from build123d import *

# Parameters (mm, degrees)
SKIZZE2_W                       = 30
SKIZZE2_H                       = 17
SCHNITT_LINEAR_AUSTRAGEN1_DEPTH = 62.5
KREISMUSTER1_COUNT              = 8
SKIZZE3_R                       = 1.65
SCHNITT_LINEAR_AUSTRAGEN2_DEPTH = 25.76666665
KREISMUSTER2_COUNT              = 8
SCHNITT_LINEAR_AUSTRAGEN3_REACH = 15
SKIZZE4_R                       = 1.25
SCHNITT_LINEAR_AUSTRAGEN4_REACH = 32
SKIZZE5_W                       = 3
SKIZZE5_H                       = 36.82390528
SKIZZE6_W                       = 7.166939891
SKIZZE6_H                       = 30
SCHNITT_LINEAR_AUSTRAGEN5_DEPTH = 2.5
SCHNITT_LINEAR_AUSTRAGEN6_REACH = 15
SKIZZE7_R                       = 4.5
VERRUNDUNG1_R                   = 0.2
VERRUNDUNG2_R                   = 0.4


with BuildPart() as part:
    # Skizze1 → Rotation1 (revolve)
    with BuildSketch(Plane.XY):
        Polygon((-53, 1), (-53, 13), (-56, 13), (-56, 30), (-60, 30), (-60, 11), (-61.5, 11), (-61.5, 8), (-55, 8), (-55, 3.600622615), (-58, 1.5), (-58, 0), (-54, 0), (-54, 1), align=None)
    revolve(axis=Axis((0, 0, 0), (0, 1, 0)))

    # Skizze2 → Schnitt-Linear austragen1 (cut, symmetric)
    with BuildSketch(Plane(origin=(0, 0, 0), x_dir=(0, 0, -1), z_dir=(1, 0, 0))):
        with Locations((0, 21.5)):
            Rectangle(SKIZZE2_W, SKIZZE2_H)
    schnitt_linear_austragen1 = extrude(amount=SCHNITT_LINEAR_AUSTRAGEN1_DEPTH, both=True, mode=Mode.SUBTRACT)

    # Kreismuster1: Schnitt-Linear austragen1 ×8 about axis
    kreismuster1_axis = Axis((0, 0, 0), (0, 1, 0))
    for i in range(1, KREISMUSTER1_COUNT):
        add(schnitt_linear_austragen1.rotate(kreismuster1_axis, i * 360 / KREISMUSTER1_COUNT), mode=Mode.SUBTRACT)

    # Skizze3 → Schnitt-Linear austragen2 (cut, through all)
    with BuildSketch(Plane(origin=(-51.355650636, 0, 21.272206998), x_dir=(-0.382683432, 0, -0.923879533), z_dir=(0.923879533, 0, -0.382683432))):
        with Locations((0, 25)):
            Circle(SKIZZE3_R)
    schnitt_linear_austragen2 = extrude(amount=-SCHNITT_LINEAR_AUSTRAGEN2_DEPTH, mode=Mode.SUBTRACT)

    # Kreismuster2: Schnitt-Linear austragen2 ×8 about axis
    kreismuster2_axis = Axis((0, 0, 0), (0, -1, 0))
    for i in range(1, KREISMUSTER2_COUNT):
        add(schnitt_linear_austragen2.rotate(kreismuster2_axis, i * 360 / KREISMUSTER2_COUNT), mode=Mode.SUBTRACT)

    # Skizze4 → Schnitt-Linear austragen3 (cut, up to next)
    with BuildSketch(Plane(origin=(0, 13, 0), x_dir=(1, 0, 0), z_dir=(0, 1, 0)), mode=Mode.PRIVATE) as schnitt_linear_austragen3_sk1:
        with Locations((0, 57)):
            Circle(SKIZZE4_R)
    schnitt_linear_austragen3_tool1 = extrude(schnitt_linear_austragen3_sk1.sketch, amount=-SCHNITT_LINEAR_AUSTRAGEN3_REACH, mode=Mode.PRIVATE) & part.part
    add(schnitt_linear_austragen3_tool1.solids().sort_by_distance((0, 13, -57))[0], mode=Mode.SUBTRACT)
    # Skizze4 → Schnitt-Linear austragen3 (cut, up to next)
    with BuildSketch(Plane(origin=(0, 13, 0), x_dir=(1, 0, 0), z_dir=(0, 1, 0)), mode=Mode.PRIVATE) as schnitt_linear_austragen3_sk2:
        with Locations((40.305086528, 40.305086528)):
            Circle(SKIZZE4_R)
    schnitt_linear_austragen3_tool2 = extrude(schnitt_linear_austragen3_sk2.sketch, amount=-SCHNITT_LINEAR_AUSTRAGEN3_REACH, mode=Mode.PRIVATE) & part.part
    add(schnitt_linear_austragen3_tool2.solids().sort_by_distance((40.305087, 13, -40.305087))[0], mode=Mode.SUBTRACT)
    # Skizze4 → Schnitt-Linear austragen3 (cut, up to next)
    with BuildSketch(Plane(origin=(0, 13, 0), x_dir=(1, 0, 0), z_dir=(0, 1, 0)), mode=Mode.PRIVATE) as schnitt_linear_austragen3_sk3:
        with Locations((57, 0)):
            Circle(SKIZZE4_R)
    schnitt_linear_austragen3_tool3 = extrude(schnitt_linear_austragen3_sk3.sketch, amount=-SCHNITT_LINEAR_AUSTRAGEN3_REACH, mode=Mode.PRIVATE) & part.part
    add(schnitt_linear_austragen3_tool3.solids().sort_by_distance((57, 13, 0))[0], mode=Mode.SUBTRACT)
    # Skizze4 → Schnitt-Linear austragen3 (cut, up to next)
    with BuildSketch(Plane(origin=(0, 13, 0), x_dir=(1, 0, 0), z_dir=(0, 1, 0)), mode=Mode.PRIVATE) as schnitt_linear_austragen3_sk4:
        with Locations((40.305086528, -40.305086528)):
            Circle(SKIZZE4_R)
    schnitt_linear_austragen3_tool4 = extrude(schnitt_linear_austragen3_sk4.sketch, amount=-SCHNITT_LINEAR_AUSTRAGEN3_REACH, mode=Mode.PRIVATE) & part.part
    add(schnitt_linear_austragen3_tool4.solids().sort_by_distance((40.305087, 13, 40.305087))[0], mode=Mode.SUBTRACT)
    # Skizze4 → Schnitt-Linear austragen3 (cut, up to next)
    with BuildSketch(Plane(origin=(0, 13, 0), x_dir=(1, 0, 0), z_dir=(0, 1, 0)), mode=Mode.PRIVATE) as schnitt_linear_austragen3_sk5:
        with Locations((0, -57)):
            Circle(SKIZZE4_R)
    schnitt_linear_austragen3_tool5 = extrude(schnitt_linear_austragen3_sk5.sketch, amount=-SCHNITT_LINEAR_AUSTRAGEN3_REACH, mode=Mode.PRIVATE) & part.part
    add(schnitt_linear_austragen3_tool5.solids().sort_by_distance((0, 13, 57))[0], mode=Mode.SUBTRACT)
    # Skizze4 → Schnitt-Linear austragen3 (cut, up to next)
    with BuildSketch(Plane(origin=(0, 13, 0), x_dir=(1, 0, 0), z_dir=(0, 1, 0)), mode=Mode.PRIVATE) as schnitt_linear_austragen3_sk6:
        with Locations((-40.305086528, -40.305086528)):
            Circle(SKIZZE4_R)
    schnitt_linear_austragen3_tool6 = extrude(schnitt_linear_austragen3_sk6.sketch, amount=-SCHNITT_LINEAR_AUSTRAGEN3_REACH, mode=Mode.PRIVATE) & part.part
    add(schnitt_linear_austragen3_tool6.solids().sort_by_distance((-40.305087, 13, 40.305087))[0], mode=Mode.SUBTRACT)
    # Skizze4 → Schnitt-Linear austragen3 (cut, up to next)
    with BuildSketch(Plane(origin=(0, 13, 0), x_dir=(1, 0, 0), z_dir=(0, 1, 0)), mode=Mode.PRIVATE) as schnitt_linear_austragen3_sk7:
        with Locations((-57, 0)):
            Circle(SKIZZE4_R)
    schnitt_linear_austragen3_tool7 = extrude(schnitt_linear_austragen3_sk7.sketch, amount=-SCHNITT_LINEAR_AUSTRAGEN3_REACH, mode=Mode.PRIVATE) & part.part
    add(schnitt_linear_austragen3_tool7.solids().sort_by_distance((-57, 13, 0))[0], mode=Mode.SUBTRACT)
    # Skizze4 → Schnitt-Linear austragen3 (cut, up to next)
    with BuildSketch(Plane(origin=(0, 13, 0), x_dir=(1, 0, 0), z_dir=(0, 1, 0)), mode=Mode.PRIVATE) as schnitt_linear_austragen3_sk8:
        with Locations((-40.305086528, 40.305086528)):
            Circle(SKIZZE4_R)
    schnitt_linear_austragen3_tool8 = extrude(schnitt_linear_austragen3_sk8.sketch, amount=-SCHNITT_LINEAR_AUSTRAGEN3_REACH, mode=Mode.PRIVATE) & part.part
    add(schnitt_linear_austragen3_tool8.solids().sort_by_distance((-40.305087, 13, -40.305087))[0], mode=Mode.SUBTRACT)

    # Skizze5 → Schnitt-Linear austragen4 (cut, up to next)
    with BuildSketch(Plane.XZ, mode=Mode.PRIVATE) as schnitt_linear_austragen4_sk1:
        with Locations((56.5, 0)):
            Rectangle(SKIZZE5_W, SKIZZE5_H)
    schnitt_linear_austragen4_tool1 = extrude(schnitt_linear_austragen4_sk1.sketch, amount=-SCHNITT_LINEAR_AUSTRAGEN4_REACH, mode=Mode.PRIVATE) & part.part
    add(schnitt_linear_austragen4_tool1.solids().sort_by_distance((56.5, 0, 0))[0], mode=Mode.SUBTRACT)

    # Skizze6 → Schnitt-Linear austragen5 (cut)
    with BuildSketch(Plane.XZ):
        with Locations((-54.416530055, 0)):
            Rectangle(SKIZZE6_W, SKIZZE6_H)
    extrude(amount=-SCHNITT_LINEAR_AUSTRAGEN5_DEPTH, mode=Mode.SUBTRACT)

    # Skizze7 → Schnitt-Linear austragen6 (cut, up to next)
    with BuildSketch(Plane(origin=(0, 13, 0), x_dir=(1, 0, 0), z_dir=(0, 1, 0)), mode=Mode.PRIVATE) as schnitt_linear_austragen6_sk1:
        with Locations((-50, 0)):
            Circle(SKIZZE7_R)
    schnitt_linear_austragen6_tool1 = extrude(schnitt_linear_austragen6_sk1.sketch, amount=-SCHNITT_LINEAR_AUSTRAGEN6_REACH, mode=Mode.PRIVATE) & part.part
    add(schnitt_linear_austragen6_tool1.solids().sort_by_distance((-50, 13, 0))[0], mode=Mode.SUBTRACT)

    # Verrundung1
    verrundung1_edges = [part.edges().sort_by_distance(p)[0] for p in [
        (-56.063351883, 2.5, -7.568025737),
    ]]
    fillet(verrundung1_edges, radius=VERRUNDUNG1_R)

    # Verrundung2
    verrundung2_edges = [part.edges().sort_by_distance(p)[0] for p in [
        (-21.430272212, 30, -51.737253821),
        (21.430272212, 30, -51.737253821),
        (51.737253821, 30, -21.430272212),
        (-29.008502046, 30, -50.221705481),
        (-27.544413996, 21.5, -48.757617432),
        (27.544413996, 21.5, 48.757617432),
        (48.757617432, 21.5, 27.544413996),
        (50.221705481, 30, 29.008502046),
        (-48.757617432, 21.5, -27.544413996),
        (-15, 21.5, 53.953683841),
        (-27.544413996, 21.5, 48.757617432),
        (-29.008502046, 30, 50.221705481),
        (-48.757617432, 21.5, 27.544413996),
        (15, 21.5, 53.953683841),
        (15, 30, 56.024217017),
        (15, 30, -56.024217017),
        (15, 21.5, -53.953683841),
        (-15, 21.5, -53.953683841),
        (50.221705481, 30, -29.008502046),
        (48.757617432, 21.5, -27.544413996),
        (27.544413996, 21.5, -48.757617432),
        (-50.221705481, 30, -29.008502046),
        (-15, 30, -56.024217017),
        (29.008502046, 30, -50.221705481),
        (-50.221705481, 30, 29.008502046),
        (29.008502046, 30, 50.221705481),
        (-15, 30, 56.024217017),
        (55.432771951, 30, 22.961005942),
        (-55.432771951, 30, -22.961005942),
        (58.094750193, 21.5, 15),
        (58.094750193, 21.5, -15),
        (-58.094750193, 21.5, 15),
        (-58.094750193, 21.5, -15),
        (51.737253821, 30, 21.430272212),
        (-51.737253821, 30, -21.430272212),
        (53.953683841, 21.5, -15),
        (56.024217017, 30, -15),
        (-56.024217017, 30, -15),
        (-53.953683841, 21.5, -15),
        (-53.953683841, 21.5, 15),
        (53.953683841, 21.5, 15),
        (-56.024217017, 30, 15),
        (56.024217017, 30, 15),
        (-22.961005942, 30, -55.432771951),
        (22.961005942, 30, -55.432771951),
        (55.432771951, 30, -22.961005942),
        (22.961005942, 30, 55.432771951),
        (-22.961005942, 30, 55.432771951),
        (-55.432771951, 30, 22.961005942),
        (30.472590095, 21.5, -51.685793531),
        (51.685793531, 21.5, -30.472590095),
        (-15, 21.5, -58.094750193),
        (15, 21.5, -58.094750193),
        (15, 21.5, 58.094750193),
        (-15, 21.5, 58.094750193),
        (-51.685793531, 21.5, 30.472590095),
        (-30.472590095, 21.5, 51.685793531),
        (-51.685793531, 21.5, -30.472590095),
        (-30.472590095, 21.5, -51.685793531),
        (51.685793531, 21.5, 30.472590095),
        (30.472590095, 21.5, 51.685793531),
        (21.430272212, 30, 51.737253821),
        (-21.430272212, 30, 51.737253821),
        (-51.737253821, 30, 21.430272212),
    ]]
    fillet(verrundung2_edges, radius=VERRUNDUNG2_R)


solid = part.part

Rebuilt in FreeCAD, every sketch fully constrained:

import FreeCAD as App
import Part
import Sketcher
from FreeCAD import Vector
Q = App.Units.Quantity


def edges_at(feature, points):
    """Names of the edges that pass closest to the given points."""
    edges = feature.Shape.Edges
    near = lambda p: min(range(len(edges)), key=lambda i: edges[i].distToShape(Part.Vertex(*p))[0])
    return sorted({f"Edge{near(p) + 1}" for p in points})


def add_polygon(sketch, points):
    """Adds a closed chain of lines whose ends are joined by coincident constraints."""
    first, n = sketch.GeometryCount, len(points)
    for a, b in zip(points, points[1:] + points[:1]):
        sketch.addGeometry(Part.LineSegment(App.Vector(*a, 0), App.Vector(*b, 0)), False)
    for i in range(n):
        sketch.addConstraint(Sketcher.Constraint("Coincident", first + i, 2, first + (i + 1) % n, 1))

doc = App.newDocument("Part")
body = doc.addObject("PartDesign::Body", "Body")

# Sketch on XY plane
sketch1 = body.newObject("Sketcher::SketchObject", "Sketch")
sketch1.AttachmentSupport = (doc.getObject("XY_Plane"), [""])
sketch1.MapMode = "FlatFace"
add_polygon(sketch1, [(-53, 1), (-53, 13), (-56, 13), (-56, 30), (-60, 30), (-60, 11), (-61.5, 11), (-61.5, 8), (-55, 8), (-55, 3.6), (-58, 1.5), (-58, 0), (-54, 0), (-54, 1)])  # lines 0-13
sketch1.addConstraint([
    Sketcher.Constraint("Vertical", 0),
    Sketcher.Constraint("Horizontal", 1),
    Sketcher.Constraint("Vertical", 2),
    Sketcher.Constraint("Horizontal", 3),
    Sketcher.Constraint("Vertical", 4),
    Sketcher.Constraint("Horizontal", 5),
    Sketcher.Constraint("Vertical", 6),
    Sketcher.Constraint("Horizontal", 7),
    Sketcher.Constraint("Vertical", 8),
    Sketcher.Constraint("Vertical", 10),
    Sketcher.Constraint("Horizontal", 11),
    Sketcher.Constraint("Vertical", 12),
    Sketcher.Constraint("Horizontal", 13),
    Sketcher.Constraint("PointOnObject", 10, 2, -1),
    Sketcher.Constraint("Equal", 3, 11),
    Sketcher.Constraint("Equal", 1, 6),
    Sketcher.Constraint("Equal", 5, 10),
    Sketcher.Constraint("Equal", 13, 12),
    Sketcher.Constraint("DistanceX", 1, 2, 1, 1, 3.0),
    Sketcher.Constraint("DistanceX", 3, 2, 3, 1, 4.0),
    Sketcher.Constraint("DistanceX", 13, 1, 13, 2, 1.0),
    Sketcher.Constraint("DistanceY", 0, 1, 0, 2, 12.0),
    Sketcher.Constraint("DistanceY", 2, 1, 2, 2, 17.0),
    Sketcher.Constraint("DistanceY", 4, 2, 4, 1, 19.0),
    Sketcher.Constraint("Angle", 9, Q("-145 deg")),
    Sketcher.Constraint("DistanceX", 5, 2, 5, 1, 1.5),
    Sketcher.Constraint("DistanceX", 7, 1, 7, 2, 6.5),
    Sketcher.Constraint("DistanceX", 0, 2, -1, 1, 53.0),
])
revolution = body.newObject("PartDesign::Revolution", "Revolution")
revolution.Profile = sketch1
revolution.ReferenceAxis = (sketch1, ["V_Axis"])
revolution.Angle = 360

# Sketch on YZ plane
sketch2 = body.newObject("Sketcher::SketchObject", "Sketch001")
sketch2.AttachmentSupport = (doc.getObject("YZ_Plane"), [""])
sketch2.MapMode = "FlatFace"
add_polygon(sketch2, [(30, 15), (13, 15), (13, -15), (30, -15)])  # lines 0-3
sketch2.addConstraint([
    Sketcher.Constraint("Horizontal", 0),
    Sketcher.Constraint("Vertical", 1),
    Sketcher.Constraint("Horizontal", 2),
    Sketcher.Constraint("Vertical", 3),
    Sketcher.Constraint("DistanceX", 0, 2, 0, 1, 17.0),
    Sketcher.Constraint("DistanceY", 1, 2, 1, 1, 30.0),
    Sketcher.Constraint("DistanceX", -1, 1, 0, 2, 13.0),
    Sketcher.Constraint("DistanceY", -1, 1, 0, 2, 15.0),
])
pocket1 = body.newObject("PartDesign::Pocket", "Pocket")
pocket1.Profile = sketch2
pocket1.Length = 125
pocket1.Midplane = True
doc.recompute()

polarpattern = body.newObject("PartDesign::PolarPattern", "PolarPattern")
polarpattern.Originals = [pocket1]
polarpattern.Axis = (doc.getObject("Y_Axis"), [""])
polarpattern.Angle = 360
polarpattern.Occurrences = 8
body.Tip = polarpattern

# Sketch on an angled plane
sketch3 = body.newObject("Sketcher::SketchObject", "Sketch002")
sketch3.Placement = App.Placement(Vector(-51.355651, 0, 21.272207), App.Rotation(Vector(-0.382683432, 0, -0.923879533), Vector(0, 1.000000001, 0), Vector(0.923879533, 0, -0.382683432), "ZXY"))
sketch3.addGeometry(Part.Circle(Vector(0, 25, 0), Vector(0, 0, 1), 1.6), False)
sketch3.addConstraint([
    Sketcher.Constraint("PointOnObject", 0, 3, -2),
    Sketcher.Constraint("Diameter", 0, 3.3),
    Sketcher.Constraint("DistanceY", -1, 1, 0, 3, 25.0),
])
pocket2 = body.newObject("PartDesign::Pocket", "Pocket001")
pocket2.Profile = sketch3
pocket2.Type = "ThroughAll"
doc.recompute()

polarpattern2 = body.newObject("PartDesign::PolarPattern", "PolarPattern001")
polarpattern2.Originals = [pocket2]
polarpattern2.Axis = (doc.getObject("Y_Axis"), [""])
polarpattern2.Angle = 360
polarpattern2.Occurrences = 8
body.Tip = polarpattern2

# Sketch on XZ plane
sketch4 = body.newObject("Sketcher::SketchObject", "Sketch003")
sketch4.AttachmentSupport = (doc.getObject("XZ_Plane"), [""])
sketch4.MapMode = "FlatFace"
sketch4.AttachmentOffset = App.Placement(Vector(0, 0, -13), App.Rotation())
sketch4.addGeometry(Part.Circle(Vector(0, -57, 0), Vector(0, 0, 1), 1.2), False)
sketch4.addConstraint([
    Sketcher.Constraint("PointOnObject", 0, 3, -2),
    Sketcher.Constraint("Diameter", 0, 2.5),
    Sketcher.Constraint("DistanceY", 0, 3, -1, 1, 57.0),
])
pocket3 = body.newObject("PartDesign::Pocket", "Pocket002")
pocket3.Profile = sketch4
pocket3.Type = "UpToFirst"
pocket3.Reversed = True

# Sketch on XZ plane
sketch5 = body.newObject("Sketcher::SketchObject", "Sketch004")
sketch5.AttachmentSupport = (doc.getObject("XZ_Plane"), [""])
sketch5.MapMode = "FlatFace"
sketch5.AttachmentOffset = App.Placement(Vector(0, 0, -13), App.Rotation())
sketch5.addGeometry(Part.Circle(Vector(40.3, -40.3, 0), Vector(0, 0, 1), 1.2), False)
sketch5.addConstraint([
    Sketcher.Constraint("Diameter", 0, 2.5),
    Sketcher.Constraint("DistanceX", -1, 1, 0, 3, 40.305087),
    Sketcher.Constraint("DistanceY", 0, 3, -1, 1, 40.305087),
])
pocket4 = body.newObject("PartDesign::Pocket", "Pocket003")
pocket4.Profile = sketch5
pocket4.Type = "UpToFirst"
pocket4.Reversed = True

# Sketch on XZ plane
sketch6 = body.newObject("Sketcher::SketchObject", "Sketch005")
sketch6.AttachmentSupport = (doc.getObject("XZ_Plane"), [""])
sketch6.MapMode = "FlatFace"
sketch6.AttachmentOffset = App.Placement(Vector(0, 0, -13), App.Rotation())
sketch6.addGeometry(Part.Circle(Vector(57, 0, 0), Vector(0, 0, 1), 1.2), False)
sketch6.addConstraint([
    Sketcher.Constraint("PointOnObject", 0, 3, -1),
    Sketcher.Constraint("Diameter", 0, 2.5),
    Sketcher.Constraint("DistanceX", -1, 1, 0, 3, 57.0),
])
pocket5 = body.newObject("PartDesign::Pocket", "Pocket004")
pocket5.Profile = sketch6
pocket5.Type = "UpToFirst"
pocket5.Reversed = True

# Sketch on XZ plane
sketch7 = body.newObject("Sketcher::SketchObject", "Sketch006")
sketch7.AttachmentSupport = (doc.getObject("XZ_Plane"), [""])
sketch7.MapMode = "FlatFace"
sketch7.AttachmentOffset = App.Placement(Vector(0, 0, -13), App.Rotation())
sketch7.addGeometry(Part.Circle(Vector(40.3, 40.3, 0), Vector(0, 0, 1), 1.2), False)
sketch7.addConstraint([
    Sketcher.Constraint("Diameter", 0, 2.5),
    Sketcher.Constraint("DistanceX", -1, 1, 0, 3, 40.305087),
    Sketcher.Constraint("DistanceY", -1, 1, 0, 3, 40.305087),
])
pocket6 = body.newObject("PartDesign::Pocket", "Pocket005")
pocket6.Profile = sketch7
pocket6.Type = "UpToFirst"
pocket6.Reversed = True

# Sketch on XZ plane
sketch8 = body.newObject("Sketcher::SketchObject", "Sketch007")
sketch8.AttachmentSupport = (doc.getObject("XZ_Plane"), [""])
sketch8.MapMode = "FlatFace"
sketch8.AttachmentOffset = App.Placement(Vector(0, 0, -13), App.Rotation())
sketch8.addGeometry(Part.Circle(Vector(0, 57, 0), Vector(0, 0, 1), 1.2), False)
sketch8.addConstraint([
    Sketcher.Constraint("PointOnObject", 0, 3, -2),
    Sketcher.Constraint("Diameter", 0, 2.5),
    Sketcher.Constraint("DistanceY", -1, 1, 0, 3, 57.0),
])
pocket7 = body.newObject("PartDesign::Pocket", "Pocket006")
pocket7.Profile = sketch8
pocket7.Type = "UpToFirst"
pocket7.Reversed = True

# Sketch on XZ plane
sketch9 = body.newObject("Sketcher::SketchObject", "Sketch008")
sketch9.AttachmentSupport = (doc.getObject("XZ_Plane"), [""])
sketch9.MapMode = "FlatFace"
sketch9.AttachmentOffset = App.Placement(Vector(0, 0, -13), App.Rotation())
sketch9.addGeometry(Part.Circle(Vector(-40.3, 40.3, 0), Vector(0, 0, 1), 1.2), False)
sketch9.addConstraint([
    Sketcher.Constraint("Diameter", 0, 2.5),
    Sketcher.Constraint("DistanceX", 0, 3, -1, 1, 40.305087),
    Sketcher.Constraint("DistanceY", -1, 1, 0, 3, 40.305087),
])
pocket8 = body.newObject("PartDesign::Pocket", "Pocket007")
pocket8.Profile = sketch9
pocket8.Type = "UpToFirst"
pocket8.Reversed = True

# Sketch on XZ plane
sketch10 = body.newObject("Sketcher::SketchObject", "Sketch009")
sketch10.AttachmentSupport = (doc.getObject("XZ_Plane"), [""])
sketch10.MapMode = "FlatFace"
sketch10.AttachmentOffset = App.Placement(Vector(0, 0, -13), App.Rotation())
sketch10.addGeometry(Part.Circle(Vector(-57, 0, 0), Vector(0, 0, 1), 1.2), False)
sketch10.addConstraint([
    Sketcher.Constraint("PointOnObject", 0, 3, -1),
    Sketcher.Constraint("Diameter", 0, 2.5),
    Sketcher.Constraint("DistanceX", 0, 3, -1, 1, 57.0),
])
pocket9 = body.newObject("PartDesign::Pocket", "Pocket008")
pocket9.Profile = sketch10
pocket9.Type = "UpToFirst"
pocket9.Reversed = True

# Sketch on XZ plane
sketch11 = body.newObject("Sketcher::SketchObject", "Sketch010")
sketch11.AttachmentSupport = (doc.getObject("XZ_Plane"), [""])
sketch11.MapMode = "FlatFace"
sketch11.AttachmentOffset = App.Placement(Vector(0, 0, -13), App.Rotation())
sketch11.addGeometry(Part.Circle(Vector(-40.3, -40.3, 0), Vector(0, 0, 1), 1.2), False)
sketch11.addConstraint([
    Sketcher.Constraint("Diameter", 0, 2.5),
    Sketcher.Constraint("DistanceX", 0, 3, -1, 1, 40.305087),
    Sketcher.Constraint("DistanceY", 0, 3, -1, 1, 40.305087),
])
pocket10 = body.newObject("PartDesign::Pocket", "Pocket009")
pocket10.Profile = sketch11
pocket10.Type = "UpToFirst"
pocket10.Reversed = True

# Sketch on XZ plane
sketch12 = body.newObject("Sketcher::SketchObject", "Sketch011")
sketch12.AttachmentSupport = (doc.getObject("XZ_Plane"), [""])
sketch12.MapMode = "FlatFace"
add_polygon(sketch12, [(55, 18.4), (55, -18.4), (58, -18.4), (58, 18.4)])  # lines 0-3
sketch12.addConstraint([
    Sketcher.Constraint("Vertical", 0),
    Sketcher.Constraint("Horizontal", 1),
    Sketcher.Constraint("Vertical", 2),
    Sketcher.Constraint("Horizontal", 3),
    Sketcher.Constraint("DistanceX", 1, 1, 1, 2, 3.0),
    Sketcher.Constraint("DistanceX", -1, 1, 0, 2, 55.0),
    Sketcher.Constraint("DistanceY", 0, 2, 0, 1, 36.823905),
    Sketcher.Constraint("DistanceY", 0, 2, -1, 1, 18.411953),
])
pocket11 = body.newObject("PartDesign::Pocket", "Pocket010")
pocket11.Profile = sketch12
pocket11.Length = 3.600623

# Sketch on XZ plane
sketch13 = body.newObject("Sketcher::SketchObject", "Sketch012")
sketch13.AttachmentSupport = (doc.getObject("XZ_Plane"), [""])
sketch13.MapMode = "FlatFace"
add_polygon(sketch13, [(-58, 15), (-58, -15), (-51, -15), (-51, 15)])  # lines 0-3
sketch13.addConstraint([
    Sketcher.Constraint("Vertical", 0),
    Sketcher.Constraint("Horizontal", 1),
    Sketcher.Constraint("Vertical", 2),
    Sketcher.Constraint("Horizontal", 3),
    Sketcher.Constraint("DistanceY", 0, 2, 0, 1, 30.0),
    Sketcher.Constraint("DistanceX", 0, 2, -1, 1, 58.0),
    Sketcher.Constraint("DistanceY", 0, 2, -1, 1, 15.0),
    Sketcher.Constraint("DistanceX", 1, 1, 1, 2, 7.16694),
])
pocket12 = body.newObject("PartDesign::Pocket", "Pocket011")
pocket12.Profile = sketch13
pocket12.Length = 2.5

# Sketch on XZ plane
sketch14 = body.newObject("Sketcher::SketchObject", "Sketch013")
sketch14.AttachmentSupport = (doc.getObject("XZ_Plane"), [""])
sketch14.MapMode = "FlatFace"
sketch14.AttachmentOffset = App.Placement(Vector(0, 0, -13), App.Rotation())
sketch14.addGeometry(Part.Circle(Vector(-50, 0, 0), Vector(0, 0, 1), 4.5), False)
sketch14.addConstraint([
    Sketcher.Constraint("PointOnObject", 0, 3, -1),
    Sketcher.Constraint("Diameter", 0, 9.0),
    Sketcher.Constraint("DistanceX", 0, 3, -1, 1, 50.0),
])
pocket13 = body.newObject("PartDesign::Pocket", "Pocket012")
pocket13.Profile = sketch14
pocket13.Length = 10.5
pocket13.Reversed = True
doc.recompute()

fillet = body.newObject("PartDesign::Fillet", "Fillet")
fillet.Base = (pocket13, edges_at(pocket13, [(-56.063, 2.5, -7.568)]))
fillet.Radius = 0.2
doc.recompute()

fillet2 = body.newObject("PartDesign::Fillet", "Fillet001")
fillet2.Base = (fillet, edges_at(fillet, [
    (-21.43, 30, -51.737),
    (21.43, 30, -51.737),
    (51.737, 30, -21.43),
    (-29.009, 30, -50.222),
    (-27.544, 21.5, -48.758),
    (27.544, 21.5, 48.758),
    (48.758, 21.5, 27.544),
    (50.222, 30, 29.009),
    (-48.758, 21.5, -27.544),
    (-15, 21.5, 53.954),
    (-27.544, 21.5, 48.758),
    (-29.009, 30, 50.222),
    (-48.758, 21.5, 27.544),
    (15, 21.5, 53.954),
    (15, 30, 56.024),
    (15, 30, -56.024),
    (15, 21.5, -53.954),
    (-15, 21.5, -53.954),
    (50.222, 30, -29.009),
    (48.758, 21.5, -27.544),
    (27.544, 21.5, -48.758),
    (-50.222, 30, -29.009),
    (-15, 30, -56.024),
    (29.009, 30, -50.222),
    (-50.222, 30, 29.009),
    (29.009, 30, 50.222),
    (-15, 30, 56.024),
    (55.433, 30, 22.961),
    (-55.433, 30, -22.961),
    (58.095, 21.5, 15),
    (58.095, 21.5, -15),
    (-58.095, 21.5, 15),
    (-58.095, 21.5, -15),
    (51.737, 30, 21.43),
    (-51.737, 30, -21.43),
    (53.954, 21.5, -15),
    (56.024, 30, -15),
    (-56.024, 30, -15),
    (-53.954, 21.5, -15),
    (-53.954, 21.5, 15),
    (53.954, 21.5, 15),
    (-56.024, 30, 15),
    (56.024, 30, 15),
    (-22.961, 30, -55.433),
    (22.961, 30, -55.433),
    (55.433, 30, -22.961),
    (22.961, 30, 55.433),
    (-22.961, 30, 55.433),
    (-55.433, 30, 22.961),
    (30.473, 21.5, -51.686),
    (51.686, 21.5, -30.473),
    (-15, 21.5, -58.095),
    (15, 21.5, -58.095),
    (15, 21.5, 58.095),
    (-15, 21.5, 58.095),
    (-51.686, 21.5, 30.473),
    (-30.473, 21.5, 51.686),
    (-51.686, 21.5, -30.473),
    (-30.473, 21.5, -51.686),
    (51.686, 21.5, 30.473),
    (30.473, 21.5, 51.686),
    (21.43, 30, 51.737),
    (-21.43, 30, 51.737),
    (-51.737, 30, 21.43),
]))
fillet2.Radius = 0.4

doc.recompute()
